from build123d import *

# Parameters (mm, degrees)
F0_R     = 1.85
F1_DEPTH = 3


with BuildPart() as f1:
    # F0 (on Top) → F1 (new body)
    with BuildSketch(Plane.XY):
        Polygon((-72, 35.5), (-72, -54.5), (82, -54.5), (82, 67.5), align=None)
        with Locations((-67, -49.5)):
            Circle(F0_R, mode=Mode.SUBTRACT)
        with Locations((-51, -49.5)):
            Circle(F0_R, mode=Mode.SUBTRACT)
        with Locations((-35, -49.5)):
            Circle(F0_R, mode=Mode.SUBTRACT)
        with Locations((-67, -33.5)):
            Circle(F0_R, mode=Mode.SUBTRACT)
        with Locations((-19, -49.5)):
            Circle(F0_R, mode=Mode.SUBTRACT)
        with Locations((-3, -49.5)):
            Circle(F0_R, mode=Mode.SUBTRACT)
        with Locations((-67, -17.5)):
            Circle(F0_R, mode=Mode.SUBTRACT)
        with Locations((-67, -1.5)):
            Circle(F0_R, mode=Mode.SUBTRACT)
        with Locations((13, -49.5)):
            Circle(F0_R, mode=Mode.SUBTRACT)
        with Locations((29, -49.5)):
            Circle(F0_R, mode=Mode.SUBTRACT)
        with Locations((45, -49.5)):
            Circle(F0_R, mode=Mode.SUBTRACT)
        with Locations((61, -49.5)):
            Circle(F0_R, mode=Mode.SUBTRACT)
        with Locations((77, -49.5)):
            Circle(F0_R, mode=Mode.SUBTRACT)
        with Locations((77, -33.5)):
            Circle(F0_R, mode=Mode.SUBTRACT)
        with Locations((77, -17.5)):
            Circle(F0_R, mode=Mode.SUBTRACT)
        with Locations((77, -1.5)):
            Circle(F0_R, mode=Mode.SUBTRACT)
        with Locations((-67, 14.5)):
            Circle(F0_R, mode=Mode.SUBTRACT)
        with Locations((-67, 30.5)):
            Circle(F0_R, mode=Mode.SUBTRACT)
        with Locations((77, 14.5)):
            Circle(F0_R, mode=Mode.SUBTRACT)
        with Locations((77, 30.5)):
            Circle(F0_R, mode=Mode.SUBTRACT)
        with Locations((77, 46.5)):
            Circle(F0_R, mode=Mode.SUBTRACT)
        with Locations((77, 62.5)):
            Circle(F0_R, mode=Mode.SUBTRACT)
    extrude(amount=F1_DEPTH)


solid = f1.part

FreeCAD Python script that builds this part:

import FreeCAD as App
import Part
import Sketcher

V = App.Vector

doc = App.newDocument("Part")
body = doc.addObject("PartDesign::Body", "Body")

sketch1 = body.newObject("Sketcher::SketchObject", "Sketch")
sketch1.AttachmentSupport = (doc.getObject("XY_Plane"), [""])
sketch1.MapMode = "FlatFace"
sketch1.addGeometry(Part.LineSegment(V(-72, 35.5, 0), V(-72, -54.5, 0)), False)
sketch1.addGeometry(Part.LineSegment(V(-72, -54.5, 0), V(82, -54.5, 0)), False)
sketch1.addGeometry(Part.LineSegment(V(82, -54.5, 0), V(82, 67.5, 0)), False)
sketch1.addGeometry(Part.LineSegment(V(82, 67.5, 0), V(-72, 35.5, 0)), False)
sketch1.addGeometry(Part.Circle(V(-67, -49.5, 0), V(0, 0, 1), 1.9), False)
sketch1.addGeometry(Part.Circle(V(-51, -49.5, 0), V(0, 0, 1), 1.9), False)
sketch1.addGeometry(Part.Circle(V(-35, -49.5, 0), V(0, 0, 1), 1.9), False)
sketch1.addGeometry(Part.Circle(V(-67, -33.5, 0), V(0, 0, 1), 1.9), False)
sketch1.addGeometry(Part.Circle(V(-19, -49.5, 0), V(0, 0, 1), 1.9), False)
sketch1.addGeometry(Part.Circle(V(-3, -49.5, 0), V(0, 0, 1), 1.9), False)
sketch1.addGeometry(Part.Circle(V(-67, -17.5, 0), V(0, 0, 1), 1.9), False)
sketch1.addGeometry(Part.Circle(V(-67, -1.5, 0), V(0, 0, 1), 1.9), False)
sketch1.addGeometry(Part.Circle(V(13, -49.5, 0), V(0, 0, 1), 1.9), False)
sketch1.addGeometry(Part.Circle(V(29, -49.5, 0), V(0, 0, 1), 1.9), False)
sketch1.addGeometry(Part.Circle(V(45, -49.5, 0), V(0, 0, 1), 1.9), False)
sketch1.addGeometry(Part.Circle(V(61, -49.5, 0), V(0, 0, 1), 1.9), False)
sketch1.addGeometry(Part.Circle(V(77, -49.5, 0), V(0, 0, 1), 1.9), False)
sketch1.addGeometry(Part.Circle(V(77, -33.5, 0), V(0, 0, 1), 1.9), False)
sketch1.addGeometry(Part.Circle(V(77, -17.5, 0), V(0, 0, 1), 1.9), False)
sketch1.addGeometry(Part.Circle(V(77, -1.5, 0), V(0, 0, 1), 1.9), False)
sketch1.addGeometry(Part.Circle(V(-67, 14.5, 0), V(0, 0, 1), 1.9), False)
sketch1.addGeometry(Part.Circle(V(-67, 30.5, 0), V(0, 0, 1), 1.9), False)
sketch1.addGeometry(Part.Circle(V(77, 14.5, 0), V(0, 0, 1), 1.9), False)
sketch1.addGeometry(Part.Circle(V(77, 30.5, 0), V(0, 0, 1), 1.9), False)
sketch1.addGeometry(Part.Circle(V(77, 46.5, 0), V(0, 0, 1), 1.9), False)
sketch1.addGeometry(Part.Circle(V(77, 62.5, 0), V(0, 0, 1), 1.9), False)
sketch1.addConstraint(Sketcher.Constraint("Coincident", 0, 2, 1, 1))
sketch1.addConstraint(Sketcher.Constraint("Coincident", 1, 2, 2, 1))
sketch1.addConstraint(Sketcher.Constraint("Coincident", 2, 2, 3, 1))
sketch1.addConstraint(Sketcher.Constraint("Coincident", 3, 2, 0, 1))
sketch1.addConstraint(Sketcher.Constraint("Vertical", 0))
sketch1.addConstraint(Sketcher.Constraint("Horizontal", 1))
sketch1.addConstraint(Sketcher.Constraint("Vertical", 2))
sketch1.addConstraint(Sketcher.Constraint("Equal", 4, 5))
sketch1.addConstraint(Sketcher.Constraint("Equal", 5, 6))
sketch1.addConstraint(Sketcher.Constraint("Equal", 6, 7))
sketch1.addConstraint(Sketcher.Constraint("Equal", 7, 8))
sketch1.addConstraint(Sketcher.Constraint("Equal", 8, 9))
sketch1.addConstraint(Sketcher.Constraint("Equal", 9, 10))
sketch1.addConstraint(Sketcher.Constraint("Equal", 10, 11))
sketch1.addConstraint(Sketcher.Constraint("Equal", 11, 12))
sketch1.addConstraint(Sketcher.Constraint("Equal", 12, 13))
sketch1.addConstraint(Sketcher.Constraint("Equal", 13, 14))
sketch1.addConstraint(Sketcher.Constraint("Equal", 14, 15))
sketch1.addConstraint(Sketcher.Constraint("Equal", 15, 16))
sketch1.addConstraint(Sketcher.Constraint("Equal", 16, 17))
sketch1.addConstraint(Sketcher.Constraint("Equal", 17, 18))
sketch1.addConstraint(Sketcher.Constraint("Equal", 18, 19))
sketch1.addConstraint(Sketcher.Constraint("Equal", 19, 20))
sketch1.addConstraint(Sketcher.Constraint("Equal", 20, 21))
sketch1.addConstraint(Sketcher.Constraint("Equal", 21, 22))
sketch1.addConstraint(Sketcher.Constraint("Equal", 22, 23))
sketch1.addConstraint(Sketcher.Constraint("Equal", 23, 24))
sketch1.addConstraint(Sketcher.Constraint("Equal", 24, 25))
sketch1.addConstraint(Sketcher.Constraint("Horizontal", 4, 3, 5, 3))
sketch1.addConstraint(Sketcher.Constraint("Horizontal", 5, 3, 6, 3))
sketch1.addConstraint(Sketcher.Constraint("Horizontal", 6, 3, 8, 3))
sketch1.addConstraint(Sketcher.Constraint("Horizontal", 8, 3, 9, 3))
sketch1.addConstraint(Sketcher.Constraint("Horizontal", 9, 3, 12, 3))
sketch1.addConstraint(Sketcher.Constraint("Horizontal", 12, 3, 13, 3))
sketch1.addConstraint(Sketcher.Constraint("Horizontal", 13, 3, 14, 3))
sketch1.addConstraint(Sketcher.Constraint("Horizontal", 14, 3, 15, 3))
sketch1.addConstraint(Sketcher.Constraint("Horizontal", 15, 3, 16, 3))
sketch1.addConstraint(Sketcher.Constraint("Horizontal", 7, 3, 17, 3))
sketch1.addConstraint(Sketcher.Constraint("Horizontal", 10, 3, 18, 3))
sketch1.addConstraint(Sketcher.Constraint("Horizontal", 11, 3, 19, 3))
sketch1.addConstraint(Sketcher.Constraint("Horizontal", 20, 3, 22, 3))
sketch1.addConstraint(Sketcher.Constraint("Horizontal", 21, 3, 23, 3))
sketch1.addConstraint(Sketcher.Constraint("Vertical", 4, 3, 7, 3))
sketch1.addConstraint(Sketcher.Constraint("Vertical", 7, 3, 10, 3))
sketch1.addConstraint(Sketcher.Constraint("Vertical", 10, 3, 11, 3))
sketch1.addConstraint(Sketcher.Constraint("Vertical", 16, 3, 17, 3))
sketch1.addConstraint(Sketcher.Constraint("Vertical", 17, 3, 18, 3))
sketch1.addConstraint(Sketcher.Constraint("Vertical", 18, 3, 19, 3))
sketch1.addConstraint(Sketcher.Constraint("Vertical", 11, 3, 20, 3))
sketch1.addConstraint(Sketcher.Constraint("Vertical", 20, 3, 21, 3))
sketch1.addConstraint(Sketcher.Constraint("Vertical", 19, 3, 22, 3))
sketch1.addConstraint(Sketcher.Constraint("Vertical", 22, 3, 23, 3))
sketch1.addConstraint(Sketcher.Constraint("Vertical", 23, 3, 24, 3))
sketch1.addConstraint(Sketcher.Constraint("Vertical", 24, 3, 25, 3))
sketch1.addConstraint(Sketcher.Constraint("Diameter", 4, 3.7))
sketch1.addConstraint(Sketcher.Constraint("DistanceX", 1, 1, 1, 2, 154.0))
sketch1.addConstraint(Sketcher.Constraint("DistanceY", 0, 2, 0, 1, 90.0))
sketch1.addConstraint(Sketcher.Constraint("DistanceY", 2, 1, 2, 2, 122.0))
sketch1.addConstraint(Sketcher.Constraint("DistanceX", 4, 3, -1, 1, 67.0))
sketch1.addConstraint(Sketcher.Constraint("DistanceX", 5, 3, -1, 1, 51.0))
sketch1.addConstraint(Sketcher.Constraint("DistanceX", 6, 3, -1, 1, 35.0))
sketch1.addConstraint(Sketcher.Constraint("DistanceX", 8, 3, -1, 1, 19.0))
sketch1.addConstraint(Sketcher.Constraint("DistanceX", 9, 3, -1, 1, 3.0))
sketch1.addConstraint(Sketcher.Constraint("DistanceX", -1, 1, 12, 3, 13.0))
sketch1.addConstraint(Sketcher.Constraint("DistanceX", -1, 1, 13, 3, 29.0))
sketch1.addConstraint(Sketcher.Constraint("DistanceX", -1, 1, 14, 3, 45.0))
sketch1.addConstraint(Sketcher.Constraint("DistanceX", -1, 1, 15, 3, 61.0))
sketch1.addConstraint(Sketcher.Constraint("DistanceX", -1, 1, 16, 3, 77.0))
sketch1.addConstraint(Sketcher.Constraint("DistanceX", 0, 2, -1, 1, 72.0))
sketch1.addConstraint(Sketcher.Constraint("DistanceY", 4, 3, 7, 3, 16.0))
sketch1.addConstraint(Sketcher.Constraint("DistanceY", 7, 3, 10, 3, 16.0))
sketch1.addConstraint(Sketcher.Constraint("DistanceY", 10, 3, 11, 3, 16.0))
sketch1.addConstraint(Sketcher.Constraint("DistanceY", 11, 3, 20, 3, 16.0))
sketch1.addConstraint(Sketcher.Constraint("DistanceY", 20, 3, 21, 3, 16.0))
sketch1.addConstraint(Sketcher.Constraint("DistanceY", 23, 3, 24, 3, 16.0))
sketch1.addConstraint(Sketcher.Constraint("DistanceY", 24, 3, 25, 3, 16.0))
sketch1.addConstraint(Sketcher.Constraint("DistanceY", 0, 2, 4, 3, 5.0))
sketch1.addConstraint(Sketcher.Constraint("DistanceY", 4, 3, -1, 1, 49.5))
pad1 = body.newObject("PartDesign::Pad", "Pad")
pad1.Profile = sketch1
pad1.Length = 3

doc.recompute()
